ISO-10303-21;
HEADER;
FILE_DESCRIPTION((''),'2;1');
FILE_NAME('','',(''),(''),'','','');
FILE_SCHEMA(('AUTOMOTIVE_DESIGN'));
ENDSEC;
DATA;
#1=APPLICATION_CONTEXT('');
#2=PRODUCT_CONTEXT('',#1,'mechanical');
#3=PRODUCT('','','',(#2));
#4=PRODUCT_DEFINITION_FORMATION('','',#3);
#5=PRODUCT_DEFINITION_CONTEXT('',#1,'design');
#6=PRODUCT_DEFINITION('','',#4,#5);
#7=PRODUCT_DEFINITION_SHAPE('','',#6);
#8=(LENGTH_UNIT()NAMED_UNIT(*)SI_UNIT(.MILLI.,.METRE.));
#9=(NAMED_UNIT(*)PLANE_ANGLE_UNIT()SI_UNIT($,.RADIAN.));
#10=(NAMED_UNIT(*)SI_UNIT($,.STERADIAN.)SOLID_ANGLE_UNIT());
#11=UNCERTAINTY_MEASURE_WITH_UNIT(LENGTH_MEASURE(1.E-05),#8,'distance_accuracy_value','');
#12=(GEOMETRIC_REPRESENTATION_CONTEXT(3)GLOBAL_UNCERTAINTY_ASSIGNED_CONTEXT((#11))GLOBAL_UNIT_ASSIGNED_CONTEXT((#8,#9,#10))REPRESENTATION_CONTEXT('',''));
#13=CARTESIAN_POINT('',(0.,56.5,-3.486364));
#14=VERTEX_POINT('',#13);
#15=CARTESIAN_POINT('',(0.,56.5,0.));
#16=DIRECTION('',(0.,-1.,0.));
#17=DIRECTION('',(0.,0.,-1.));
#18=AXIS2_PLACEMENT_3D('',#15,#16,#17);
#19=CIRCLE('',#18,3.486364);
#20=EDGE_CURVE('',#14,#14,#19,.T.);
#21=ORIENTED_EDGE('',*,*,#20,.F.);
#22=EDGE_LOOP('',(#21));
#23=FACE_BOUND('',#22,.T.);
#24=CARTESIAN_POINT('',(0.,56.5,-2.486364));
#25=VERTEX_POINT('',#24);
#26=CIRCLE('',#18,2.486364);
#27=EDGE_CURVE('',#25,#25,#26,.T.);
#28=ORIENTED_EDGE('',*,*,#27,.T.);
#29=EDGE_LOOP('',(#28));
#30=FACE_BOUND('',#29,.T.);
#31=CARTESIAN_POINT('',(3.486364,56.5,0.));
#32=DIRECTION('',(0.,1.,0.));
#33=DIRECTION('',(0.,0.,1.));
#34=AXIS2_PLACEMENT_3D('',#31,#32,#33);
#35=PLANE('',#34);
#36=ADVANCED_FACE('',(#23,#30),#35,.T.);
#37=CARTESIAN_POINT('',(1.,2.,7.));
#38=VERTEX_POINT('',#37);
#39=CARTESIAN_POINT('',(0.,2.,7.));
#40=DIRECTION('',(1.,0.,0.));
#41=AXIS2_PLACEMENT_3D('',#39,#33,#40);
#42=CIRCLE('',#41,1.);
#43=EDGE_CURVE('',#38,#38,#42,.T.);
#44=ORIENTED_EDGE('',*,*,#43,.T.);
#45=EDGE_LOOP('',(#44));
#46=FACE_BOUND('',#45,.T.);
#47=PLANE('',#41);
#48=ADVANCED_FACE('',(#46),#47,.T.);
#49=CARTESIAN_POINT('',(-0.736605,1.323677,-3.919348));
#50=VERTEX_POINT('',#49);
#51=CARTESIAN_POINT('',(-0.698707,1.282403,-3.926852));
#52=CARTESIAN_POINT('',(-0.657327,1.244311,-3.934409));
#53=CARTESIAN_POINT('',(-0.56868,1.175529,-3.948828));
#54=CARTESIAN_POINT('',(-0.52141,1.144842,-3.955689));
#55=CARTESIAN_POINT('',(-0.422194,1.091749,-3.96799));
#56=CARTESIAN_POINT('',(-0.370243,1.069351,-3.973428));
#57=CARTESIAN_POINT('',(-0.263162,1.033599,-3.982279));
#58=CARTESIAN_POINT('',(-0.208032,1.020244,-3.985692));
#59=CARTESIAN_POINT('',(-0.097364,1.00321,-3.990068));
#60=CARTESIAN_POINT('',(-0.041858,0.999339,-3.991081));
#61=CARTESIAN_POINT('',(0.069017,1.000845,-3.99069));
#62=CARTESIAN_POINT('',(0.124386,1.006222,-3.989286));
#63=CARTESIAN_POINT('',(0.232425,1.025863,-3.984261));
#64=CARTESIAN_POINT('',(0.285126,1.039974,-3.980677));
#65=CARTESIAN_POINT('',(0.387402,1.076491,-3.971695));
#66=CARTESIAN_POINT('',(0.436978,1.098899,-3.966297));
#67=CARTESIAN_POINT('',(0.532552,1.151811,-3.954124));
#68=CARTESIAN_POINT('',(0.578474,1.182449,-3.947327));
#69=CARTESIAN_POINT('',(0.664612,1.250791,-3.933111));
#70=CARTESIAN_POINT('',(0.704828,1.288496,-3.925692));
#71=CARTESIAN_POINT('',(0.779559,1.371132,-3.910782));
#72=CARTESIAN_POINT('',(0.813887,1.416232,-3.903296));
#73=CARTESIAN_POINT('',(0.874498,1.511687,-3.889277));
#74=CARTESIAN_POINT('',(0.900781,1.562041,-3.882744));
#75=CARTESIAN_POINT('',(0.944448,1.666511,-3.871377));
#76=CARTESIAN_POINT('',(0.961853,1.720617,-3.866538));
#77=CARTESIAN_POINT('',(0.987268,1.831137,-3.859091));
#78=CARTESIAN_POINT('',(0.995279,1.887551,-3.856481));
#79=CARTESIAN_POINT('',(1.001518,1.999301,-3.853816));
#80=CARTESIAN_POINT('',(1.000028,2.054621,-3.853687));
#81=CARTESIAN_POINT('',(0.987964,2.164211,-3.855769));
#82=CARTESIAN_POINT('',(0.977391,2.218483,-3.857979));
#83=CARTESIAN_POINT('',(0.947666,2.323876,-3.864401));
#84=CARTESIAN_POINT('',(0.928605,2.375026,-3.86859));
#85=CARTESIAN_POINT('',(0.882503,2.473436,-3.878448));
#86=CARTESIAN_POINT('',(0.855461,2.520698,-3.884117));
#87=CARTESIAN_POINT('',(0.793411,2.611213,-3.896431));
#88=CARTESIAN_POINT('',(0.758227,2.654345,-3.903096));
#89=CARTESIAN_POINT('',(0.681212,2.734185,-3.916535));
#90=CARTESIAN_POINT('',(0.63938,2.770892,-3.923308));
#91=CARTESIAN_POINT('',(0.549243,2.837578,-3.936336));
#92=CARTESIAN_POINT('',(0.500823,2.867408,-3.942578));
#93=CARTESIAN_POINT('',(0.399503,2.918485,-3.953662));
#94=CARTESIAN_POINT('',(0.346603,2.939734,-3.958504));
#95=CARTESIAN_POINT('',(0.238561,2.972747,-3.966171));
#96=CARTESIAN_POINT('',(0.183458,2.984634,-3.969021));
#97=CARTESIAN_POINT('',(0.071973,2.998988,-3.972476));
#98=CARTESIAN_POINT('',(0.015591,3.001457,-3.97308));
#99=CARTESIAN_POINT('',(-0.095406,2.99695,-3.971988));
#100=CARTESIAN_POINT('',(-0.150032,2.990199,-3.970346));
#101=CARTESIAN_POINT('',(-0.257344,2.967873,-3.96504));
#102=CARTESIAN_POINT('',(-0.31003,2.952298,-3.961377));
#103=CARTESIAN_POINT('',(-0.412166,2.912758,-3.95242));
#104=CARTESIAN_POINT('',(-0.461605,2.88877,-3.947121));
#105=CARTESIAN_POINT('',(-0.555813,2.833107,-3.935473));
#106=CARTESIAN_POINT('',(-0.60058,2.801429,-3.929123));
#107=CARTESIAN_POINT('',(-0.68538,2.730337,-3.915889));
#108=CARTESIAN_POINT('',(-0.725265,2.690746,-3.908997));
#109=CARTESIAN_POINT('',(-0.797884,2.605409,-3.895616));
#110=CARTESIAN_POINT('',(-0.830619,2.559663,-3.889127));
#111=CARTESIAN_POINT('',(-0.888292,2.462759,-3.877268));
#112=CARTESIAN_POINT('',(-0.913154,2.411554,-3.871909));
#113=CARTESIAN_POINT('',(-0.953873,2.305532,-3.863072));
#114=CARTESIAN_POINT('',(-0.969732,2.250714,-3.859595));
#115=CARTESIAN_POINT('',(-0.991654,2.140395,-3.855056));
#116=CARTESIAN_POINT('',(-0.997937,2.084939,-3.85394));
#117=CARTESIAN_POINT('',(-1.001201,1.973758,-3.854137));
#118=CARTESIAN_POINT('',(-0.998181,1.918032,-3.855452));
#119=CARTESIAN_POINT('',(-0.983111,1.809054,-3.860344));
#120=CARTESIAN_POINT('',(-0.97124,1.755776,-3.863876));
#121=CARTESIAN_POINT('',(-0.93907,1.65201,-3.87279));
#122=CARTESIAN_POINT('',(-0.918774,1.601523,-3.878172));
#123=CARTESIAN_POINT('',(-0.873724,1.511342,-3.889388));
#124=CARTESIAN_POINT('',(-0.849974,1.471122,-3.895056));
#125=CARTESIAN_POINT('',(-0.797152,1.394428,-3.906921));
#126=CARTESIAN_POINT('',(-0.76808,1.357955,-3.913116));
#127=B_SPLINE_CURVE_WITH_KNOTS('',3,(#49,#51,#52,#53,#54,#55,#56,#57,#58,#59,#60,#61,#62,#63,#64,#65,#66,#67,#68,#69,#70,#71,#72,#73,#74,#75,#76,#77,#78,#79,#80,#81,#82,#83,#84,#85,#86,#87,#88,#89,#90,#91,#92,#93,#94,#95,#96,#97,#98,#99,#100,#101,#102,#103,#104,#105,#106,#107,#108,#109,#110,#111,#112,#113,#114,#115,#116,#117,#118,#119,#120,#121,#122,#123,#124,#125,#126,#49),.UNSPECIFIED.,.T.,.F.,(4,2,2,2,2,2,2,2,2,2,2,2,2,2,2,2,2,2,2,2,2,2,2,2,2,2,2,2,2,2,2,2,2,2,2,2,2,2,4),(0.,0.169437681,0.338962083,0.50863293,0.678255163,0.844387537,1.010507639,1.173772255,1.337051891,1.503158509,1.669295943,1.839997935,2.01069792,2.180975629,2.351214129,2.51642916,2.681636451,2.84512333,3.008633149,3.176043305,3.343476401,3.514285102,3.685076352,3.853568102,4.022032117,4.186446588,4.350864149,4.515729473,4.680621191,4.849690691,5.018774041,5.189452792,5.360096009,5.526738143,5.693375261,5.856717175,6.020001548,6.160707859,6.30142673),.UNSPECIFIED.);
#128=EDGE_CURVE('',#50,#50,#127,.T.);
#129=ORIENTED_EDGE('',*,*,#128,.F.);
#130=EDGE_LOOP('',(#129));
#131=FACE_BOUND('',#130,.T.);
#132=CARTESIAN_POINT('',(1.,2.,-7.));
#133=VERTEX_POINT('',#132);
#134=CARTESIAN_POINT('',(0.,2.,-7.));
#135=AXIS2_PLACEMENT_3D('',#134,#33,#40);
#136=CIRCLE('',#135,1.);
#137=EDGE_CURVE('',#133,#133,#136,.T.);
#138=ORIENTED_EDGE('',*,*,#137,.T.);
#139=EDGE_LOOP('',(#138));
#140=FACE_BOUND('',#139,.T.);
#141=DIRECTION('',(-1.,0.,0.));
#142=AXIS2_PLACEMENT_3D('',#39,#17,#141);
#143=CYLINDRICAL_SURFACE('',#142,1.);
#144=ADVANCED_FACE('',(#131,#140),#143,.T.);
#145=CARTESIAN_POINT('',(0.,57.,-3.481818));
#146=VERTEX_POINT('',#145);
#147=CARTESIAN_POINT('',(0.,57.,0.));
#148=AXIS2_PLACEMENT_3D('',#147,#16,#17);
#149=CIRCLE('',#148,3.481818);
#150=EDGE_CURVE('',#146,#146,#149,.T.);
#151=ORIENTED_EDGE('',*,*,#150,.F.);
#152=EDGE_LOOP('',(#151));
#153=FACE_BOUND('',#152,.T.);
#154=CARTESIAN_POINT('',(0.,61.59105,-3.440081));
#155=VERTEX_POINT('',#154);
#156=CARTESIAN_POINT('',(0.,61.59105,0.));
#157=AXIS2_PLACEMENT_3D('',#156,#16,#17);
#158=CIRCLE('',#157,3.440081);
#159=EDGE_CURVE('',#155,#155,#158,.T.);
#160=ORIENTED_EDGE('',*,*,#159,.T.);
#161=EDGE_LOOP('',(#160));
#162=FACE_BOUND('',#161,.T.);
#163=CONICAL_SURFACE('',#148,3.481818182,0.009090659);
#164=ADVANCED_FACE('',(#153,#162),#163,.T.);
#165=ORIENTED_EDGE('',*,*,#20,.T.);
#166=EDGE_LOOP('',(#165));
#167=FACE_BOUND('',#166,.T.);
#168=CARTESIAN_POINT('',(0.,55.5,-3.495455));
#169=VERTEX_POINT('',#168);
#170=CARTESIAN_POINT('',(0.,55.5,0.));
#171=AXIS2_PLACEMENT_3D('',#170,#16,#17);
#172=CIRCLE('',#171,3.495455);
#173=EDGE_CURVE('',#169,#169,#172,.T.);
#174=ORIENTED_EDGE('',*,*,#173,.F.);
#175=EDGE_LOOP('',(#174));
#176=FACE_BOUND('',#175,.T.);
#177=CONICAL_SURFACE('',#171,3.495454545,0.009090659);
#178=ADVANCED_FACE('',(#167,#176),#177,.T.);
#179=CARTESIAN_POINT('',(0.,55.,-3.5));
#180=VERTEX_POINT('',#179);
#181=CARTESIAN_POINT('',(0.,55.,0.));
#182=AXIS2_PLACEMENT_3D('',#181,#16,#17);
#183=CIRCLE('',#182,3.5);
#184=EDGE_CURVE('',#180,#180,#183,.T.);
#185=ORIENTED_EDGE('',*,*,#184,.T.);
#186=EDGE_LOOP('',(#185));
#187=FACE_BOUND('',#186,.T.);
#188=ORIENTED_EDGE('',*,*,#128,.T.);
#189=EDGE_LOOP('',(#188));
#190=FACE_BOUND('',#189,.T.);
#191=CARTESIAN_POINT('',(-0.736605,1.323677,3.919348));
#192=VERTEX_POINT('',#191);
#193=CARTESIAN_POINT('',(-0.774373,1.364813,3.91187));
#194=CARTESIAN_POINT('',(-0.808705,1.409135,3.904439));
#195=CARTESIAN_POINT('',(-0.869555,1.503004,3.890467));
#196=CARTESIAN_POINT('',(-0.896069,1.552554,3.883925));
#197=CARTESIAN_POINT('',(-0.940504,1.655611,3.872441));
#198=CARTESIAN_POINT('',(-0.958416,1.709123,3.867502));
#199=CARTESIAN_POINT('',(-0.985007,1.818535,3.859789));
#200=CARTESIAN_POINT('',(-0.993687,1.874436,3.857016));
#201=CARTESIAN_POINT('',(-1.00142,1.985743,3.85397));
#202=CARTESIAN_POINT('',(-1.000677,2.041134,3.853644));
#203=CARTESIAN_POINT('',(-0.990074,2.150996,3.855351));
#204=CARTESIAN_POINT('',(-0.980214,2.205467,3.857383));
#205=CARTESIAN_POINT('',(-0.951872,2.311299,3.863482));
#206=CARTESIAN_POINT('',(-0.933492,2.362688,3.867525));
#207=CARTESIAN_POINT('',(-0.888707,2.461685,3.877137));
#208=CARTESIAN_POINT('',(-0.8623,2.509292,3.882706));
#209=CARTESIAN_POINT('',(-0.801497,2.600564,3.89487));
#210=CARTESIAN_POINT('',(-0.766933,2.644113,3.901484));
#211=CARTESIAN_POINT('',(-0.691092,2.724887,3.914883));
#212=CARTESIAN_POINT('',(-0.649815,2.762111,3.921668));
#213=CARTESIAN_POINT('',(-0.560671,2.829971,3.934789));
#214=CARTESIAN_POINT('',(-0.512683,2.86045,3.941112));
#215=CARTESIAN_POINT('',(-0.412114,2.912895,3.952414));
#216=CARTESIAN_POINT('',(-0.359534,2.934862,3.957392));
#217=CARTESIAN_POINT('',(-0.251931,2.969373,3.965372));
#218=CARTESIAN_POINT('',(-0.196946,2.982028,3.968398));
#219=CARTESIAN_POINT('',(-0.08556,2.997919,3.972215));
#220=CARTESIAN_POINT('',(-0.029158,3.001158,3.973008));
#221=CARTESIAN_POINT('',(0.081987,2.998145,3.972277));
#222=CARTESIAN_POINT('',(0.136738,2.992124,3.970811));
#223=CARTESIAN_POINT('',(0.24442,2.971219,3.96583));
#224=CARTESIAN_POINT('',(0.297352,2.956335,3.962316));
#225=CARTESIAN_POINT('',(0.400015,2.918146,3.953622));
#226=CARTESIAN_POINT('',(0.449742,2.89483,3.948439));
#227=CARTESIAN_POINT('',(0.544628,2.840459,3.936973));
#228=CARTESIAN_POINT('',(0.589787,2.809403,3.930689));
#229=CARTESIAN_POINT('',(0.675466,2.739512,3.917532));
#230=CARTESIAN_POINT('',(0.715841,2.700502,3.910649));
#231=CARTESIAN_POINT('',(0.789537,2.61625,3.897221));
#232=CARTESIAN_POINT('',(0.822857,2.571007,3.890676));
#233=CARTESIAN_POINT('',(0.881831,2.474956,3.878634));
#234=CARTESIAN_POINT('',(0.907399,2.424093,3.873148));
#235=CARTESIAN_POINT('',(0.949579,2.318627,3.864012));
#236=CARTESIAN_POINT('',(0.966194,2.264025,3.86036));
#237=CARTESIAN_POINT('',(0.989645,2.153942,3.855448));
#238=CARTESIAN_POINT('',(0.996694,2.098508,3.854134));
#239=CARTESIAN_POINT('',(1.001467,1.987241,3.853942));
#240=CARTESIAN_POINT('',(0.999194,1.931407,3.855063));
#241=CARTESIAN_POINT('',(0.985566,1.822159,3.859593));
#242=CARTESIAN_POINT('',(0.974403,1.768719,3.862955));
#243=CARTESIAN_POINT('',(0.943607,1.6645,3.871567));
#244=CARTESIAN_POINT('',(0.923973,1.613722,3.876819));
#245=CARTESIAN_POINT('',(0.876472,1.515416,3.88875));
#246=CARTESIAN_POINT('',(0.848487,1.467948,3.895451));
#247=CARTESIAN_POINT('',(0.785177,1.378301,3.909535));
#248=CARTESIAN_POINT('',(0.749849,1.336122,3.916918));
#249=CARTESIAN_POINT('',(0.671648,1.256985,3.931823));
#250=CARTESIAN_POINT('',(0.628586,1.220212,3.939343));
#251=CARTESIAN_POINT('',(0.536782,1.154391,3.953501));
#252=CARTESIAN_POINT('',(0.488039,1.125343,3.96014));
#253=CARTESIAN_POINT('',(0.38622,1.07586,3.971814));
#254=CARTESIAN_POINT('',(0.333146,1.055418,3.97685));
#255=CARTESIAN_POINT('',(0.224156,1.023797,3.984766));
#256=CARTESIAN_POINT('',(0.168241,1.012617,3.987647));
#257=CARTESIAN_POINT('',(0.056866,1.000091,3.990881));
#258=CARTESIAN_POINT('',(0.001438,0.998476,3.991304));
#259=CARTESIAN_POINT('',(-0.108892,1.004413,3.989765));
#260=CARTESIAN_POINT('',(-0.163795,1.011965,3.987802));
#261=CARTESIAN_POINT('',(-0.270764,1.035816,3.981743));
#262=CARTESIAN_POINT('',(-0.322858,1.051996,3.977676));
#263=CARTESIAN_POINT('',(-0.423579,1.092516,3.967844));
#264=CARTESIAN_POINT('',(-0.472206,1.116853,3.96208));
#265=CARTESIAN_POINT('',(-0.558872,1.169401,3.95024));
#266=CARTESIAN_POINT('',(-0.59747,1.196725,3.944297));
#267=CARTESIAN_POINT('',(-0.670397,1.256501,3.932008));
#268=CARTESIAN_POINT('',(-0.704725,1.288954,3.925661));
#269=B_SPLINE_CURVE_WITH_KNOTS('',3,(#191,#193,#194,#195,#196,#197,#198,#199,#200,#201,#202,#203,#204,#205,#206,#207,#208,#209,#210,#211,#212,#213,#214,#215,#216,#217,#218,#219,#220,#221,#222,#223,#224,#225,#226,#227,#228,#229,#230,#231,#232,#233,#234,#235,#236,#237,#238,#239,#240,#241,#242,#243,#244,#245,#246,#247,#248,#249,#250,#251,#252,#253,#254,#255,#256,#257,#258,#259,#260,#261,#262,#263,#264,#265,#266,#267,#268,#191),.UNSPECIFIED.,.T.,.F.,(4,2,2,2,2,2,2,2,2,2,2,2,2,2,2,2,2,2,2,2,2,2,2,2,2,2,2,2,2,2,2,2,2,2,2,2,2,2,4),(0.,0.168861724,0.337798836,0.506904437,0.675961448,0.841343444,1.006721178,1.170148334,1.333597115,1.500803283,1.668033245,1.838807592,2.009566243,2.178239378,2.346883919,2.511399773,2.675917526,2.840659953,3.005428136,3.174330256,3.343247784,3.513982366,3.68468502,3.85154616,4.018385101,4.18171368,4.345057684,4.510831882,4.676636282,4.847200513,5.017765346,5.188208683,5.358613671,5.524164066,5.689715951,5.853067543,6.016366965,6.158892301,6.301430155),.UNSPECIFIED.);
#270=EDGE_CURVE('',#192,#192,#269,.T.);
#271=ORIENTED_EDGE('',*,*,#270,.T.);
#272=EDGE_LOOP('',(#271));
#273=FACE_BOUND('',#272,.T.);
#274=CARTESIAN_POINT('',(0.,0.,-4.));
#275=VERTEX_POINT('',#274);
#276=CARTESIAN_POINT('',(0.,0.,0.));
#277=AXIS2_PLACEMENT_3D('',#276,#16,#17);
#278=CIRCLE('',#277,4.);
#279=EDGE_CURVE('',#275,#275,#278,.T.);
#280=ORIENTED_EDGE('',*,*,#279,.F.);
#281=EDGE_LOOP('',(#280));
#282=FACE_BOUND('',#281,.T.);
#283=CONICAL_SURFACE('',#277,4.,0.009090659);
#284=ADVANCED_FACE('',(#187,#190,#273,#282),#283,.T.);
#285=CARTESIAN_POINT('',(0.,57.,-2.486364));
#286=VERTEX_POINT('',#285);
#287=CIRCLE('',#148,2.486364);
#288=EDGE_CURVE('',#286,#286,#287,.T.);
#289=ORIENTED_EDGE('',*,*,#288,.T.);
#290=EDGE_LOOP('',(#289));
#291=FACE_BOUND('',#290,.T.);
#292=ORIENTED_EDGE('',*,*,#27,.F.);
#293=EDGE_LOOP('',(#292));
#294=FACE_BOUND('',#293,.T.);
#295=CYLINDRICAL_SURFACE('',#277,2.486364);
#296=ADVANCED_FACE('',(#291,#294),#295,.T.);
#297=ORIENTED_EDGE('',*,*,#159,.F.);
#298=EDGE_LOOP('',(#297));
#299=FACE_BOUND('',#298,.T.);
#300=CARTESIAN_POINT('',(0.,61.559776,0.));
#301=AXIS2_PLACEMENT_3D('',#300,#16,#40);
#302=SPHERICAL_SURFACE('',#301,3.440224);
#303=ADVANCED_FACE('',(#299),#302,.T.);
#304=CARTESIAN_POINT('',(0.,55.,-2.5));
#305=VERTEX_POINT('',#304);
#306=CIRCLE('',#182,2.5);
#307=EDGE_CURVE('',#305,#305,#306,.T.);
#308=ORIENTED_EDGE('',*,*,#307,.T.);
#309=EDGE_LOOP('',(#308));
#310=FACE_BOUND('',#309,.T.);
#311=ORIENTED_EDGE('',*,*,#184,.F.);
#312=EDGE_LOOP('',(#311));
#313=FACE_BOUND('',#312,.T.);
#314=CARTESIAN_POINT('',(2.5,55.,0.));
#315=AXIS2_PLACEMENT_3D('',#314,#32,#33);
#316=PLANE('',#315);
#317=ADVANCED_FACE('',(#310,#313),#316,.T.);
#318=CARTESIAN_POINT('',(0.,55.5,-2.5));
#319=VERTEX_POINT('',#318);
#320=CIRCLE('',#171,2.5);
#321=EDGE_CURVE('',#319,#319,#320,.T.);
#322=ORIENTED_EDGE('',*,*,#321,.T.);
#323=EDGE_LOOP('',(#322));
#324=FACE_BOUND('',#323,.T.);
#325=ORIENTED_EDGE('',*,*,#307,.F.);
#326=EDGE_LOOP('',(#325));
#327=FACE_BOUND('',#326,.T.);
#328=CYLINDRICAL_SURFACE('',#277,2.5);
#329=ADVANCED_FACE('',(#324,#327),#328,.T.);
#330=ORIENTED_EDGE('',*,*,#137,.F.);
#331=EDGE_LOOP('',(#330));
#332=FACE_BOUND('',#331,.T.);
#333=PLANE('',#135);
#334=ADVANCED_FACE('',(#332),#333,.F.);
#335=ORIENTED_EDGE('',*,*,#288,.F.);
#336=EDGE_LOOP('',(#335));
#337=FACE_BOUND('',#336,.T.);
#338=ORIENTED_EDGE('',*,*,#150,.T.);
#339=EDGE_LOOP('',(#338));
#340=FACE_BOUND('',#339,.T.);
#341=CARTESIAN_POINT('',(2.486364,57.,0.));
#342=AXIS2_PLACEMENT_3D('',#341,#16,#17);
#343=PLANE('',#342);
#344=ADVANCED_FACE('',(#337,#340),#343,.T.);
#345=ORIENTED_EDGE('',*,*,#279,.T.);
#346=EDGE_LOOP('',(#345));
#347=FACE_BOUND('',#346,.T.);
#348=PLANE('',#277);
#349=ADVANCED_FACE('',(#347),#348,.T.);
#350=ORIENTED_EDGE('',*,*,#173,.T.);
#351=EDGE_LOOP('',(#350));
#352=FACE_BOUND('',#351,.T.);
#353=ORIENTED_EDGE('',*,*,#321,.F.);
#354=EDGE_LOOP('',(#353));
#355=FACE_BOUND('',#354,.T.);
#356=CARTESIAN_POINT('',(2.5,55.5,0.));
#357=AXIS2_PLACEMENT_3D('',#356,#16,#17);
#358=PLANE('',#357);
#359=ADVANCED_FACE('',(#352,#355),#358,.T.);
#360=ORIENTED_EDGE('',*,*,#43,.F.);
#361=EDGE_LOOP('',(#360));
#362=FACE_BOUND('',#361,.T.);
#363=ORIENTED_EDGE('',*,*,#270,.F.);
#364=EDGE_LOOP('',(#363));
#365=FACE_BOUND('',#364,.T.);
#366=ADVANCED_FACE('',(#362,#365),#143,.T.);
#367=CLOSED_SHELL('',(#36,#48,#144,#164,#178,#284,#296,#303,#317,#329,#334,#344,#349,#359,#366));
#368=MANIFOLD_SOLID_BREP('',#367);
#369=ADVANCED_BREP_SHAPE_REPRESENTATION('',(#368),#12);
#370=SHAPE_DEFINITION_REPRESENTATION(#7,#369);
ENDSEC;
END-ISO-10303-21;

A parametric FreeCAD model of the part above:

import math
import FreeCAD as App
import Part
import Sketcher
from FreeCAD import Vector

doc = App.newDocument("Part")
params = doc.addObject("Spreadsheet::Sheet", "Params")
for row, (alias, value) in enumerate([
    ("sketch1_width", "4 mm"),
    ("sketch1_width2", "1 mm"),
    ("sketch1_height", "65 mm"),
    ("sketch1_height2", "0.5 mm"),
    ("revolution_angle", "360 deg"),
    ("sketch2_diameter", "2 mm"),
    ("pad1_length", "14 mm"),
], start=1):
    params.set(f"A{row}", alias)
    params.set(f"B{row}", "=" + value)
    params.setAlias(f"B{row}", alias)

body = doc.addObject("PartDesign::Body", "Body")

# Sketch on XY plane
sketch1 = doc.addObject("Sketcher::SketchObject", "Sketch")
body.addObject(sketch1)
sketch1.AttachmentSupport = (doc.XY_Plane, [""])
sketch1.MapMode = "FlatFace"
sketch1.addGeometry([
    Part.LineSegment(Vector(0, 0, 0), Vector(4, 0, 0)),  # 0
    Part.LineSegment(Vector(4, 0, 0), Vector(3.5, 55, 0)),  # 1
    Part.LineSegment(Vector(3.5, 55, 0), Vector(2.5, 55, 0)),  # 2
    Part.LineSegment(Vector(2.5, 55, 0), Vector(2.5, 55.5, 0)),  # 3
    Part.LineSegment(Vector(2.5, 55.5, 0), Vector(3.5, 55.5, 0)),  # 4
    Part.LineSegment(Vector(3.5, 55.5, 0), Vector(3.5, 56.5, 0)),  # 5
    Part.LineSegment(Vector(3.5, 56.5, 0), Vector(2.5, 56.5, 0)),  # 6
    Part.LineSegment(Vector(2.5, 56.5, 0), Vector(2.5, 57, 0)),  # 7
    Part.LineSegment(Vector(2.5, 57, 0), Vector(3.5, 57, 0)),  # 8
    Part.LineSegment(Vector(3.5, 57, 0), Vector(3.4, 61.6, 0)),  # 9
    Part.ArcOfCircle(Part.Circle(Vector(0, 61.6, 0), Vector(0, 0, 1), 3.4), math.radians(1), math.radians(90)),  # 10
    Part.LineSegment(Vector(0, 65, 0), Vector(0, 0, 0)),  # 11
], False)
sketch1.addConstraint([
    Sketcher.Constraint("Coincident", 0, 2, 1, 1),
    Sketcher.Constraint("Coincident", 1, 2, 2, 1),
    Sketcher.Constraint("Coincident", 2, 2, 3, 1),
    Sketcher.Constraint("Coincident", 3, 2, 4, 1),
    Sketcher.Constraint("Coincident", 4, 2, 5, 1),
    Sketcher.Constraint("Coincident", 5, 2, 6, 1),
    Sketcher.Constraint("Coincident", 6, 2, 7, 1),
    Sketcher.Constraint("Coincident", 7, 2, 8, 1),
    Sketcher.Constraint("Coincident", 8, 2, 9, 1),
    Sketcher.Constraint("Tangent", 9, 2, 10, 1),
    Sketcher.Constraint("Coincident", 10, 2, 11, 1),
    Sketcher.Constraint("Coincident", 11, 2, 0, 1),
    Sketcher.Constraint("Horizontal", 0),
    Sketcher.Constraint("Horizontal", 2),
    Sketcher.Constraint("Vertical", 3),
    Sketcher.Constraint("Horizontal", 4),
    Sketcher.Constraint("Horizontal", 6),
    Sketcher.Constraint("Vertical", 7),
    Sketcher.Constraint("Horizontal", 8),
    Sketcher.Constraint("Vertical", 11),
    Sketcher.Constraint("Coincident", 11, 2, -1, 1),
    Sketcher.Constraint("PointOnObject", 10, 3, -2),
    Sketcher.Constraint("Parallel", 1, 5),
    Sketcher.Constraint("Parallel", 5, 9),
    Sketcher.Constraint("Equal", 2, 6),
    Sketcher.Constraint("Equal", 4, 8),
    Sketcher.Constraint("Equal", 3, 7),
    Sketcher.Constraint("DistanceX", 0, 1, 0, 2, 4.0),
    Sketcher.Constraint("DistanceX", 2, 2, 2, 1, 1.0),
    Sketcher.Constraint("DistanceY", 11, 2, 11, 1, 65.0),
    Sketcher.Constraint("DistanceY", 3, 1, 3, 2, 0.5),
    Sketcher.Constraint("DistanceY", -1, 1, 1, 2, 55.0),
    Sketcher.Constraint("DistanceY", -1, 1, 7, 2, 57.0),
    Sketcher.Constraint("DistanceX", -1, 1, 1, 2, 3.5),
    Sketcher.Constraint("Radius", 10, 3.440224),
])
sketch1.setExpression("Constraints[27]", "Params.sketch1_width")
sketch1.setExpression("Constraints[28]", "Params.sketch1_width2")
sketch1.setExpression("Constraints[29]", "Params.sketch1_height")
sketch1.setExpression("Constraints[30]", "Params.sketch1_height2")
revolution = doc.addObject("PartDesign::Revolution", "Revolution")
body.addObject(revolution)
revolution.Profile = sketch1
revolution.ReferenceAxis = (sketch1, ["V_Axis"])
revolution.setExpression("Angle", "Params.revolution_angle")

# Sketch on XY plane
sketch2 = doc.addObject("Sketcher::SketchObject", "Sketch001")
body.addObject(sketch2)
sketch2.AttachmentSupport = (doc.XY_Plane, [""])
sketch2.MapMode = "FlatFace"
sketch2.addGeometry(Part.Circle(Vector(0, 2, 0), Vector(0, 0, 1), 1), False)
sketch2.addConstraint([
    Sketcher.Constraint("PointOnObject", 0, 3, -2),
    Sketcher.Constraint("Diameter", 0, 2.0),
    Sketcher.Constraint("DistanceY", -1, 1, 0, 3, 2.0),
])
sketch2.setExpression("Constraints[1]", "Params.sketch2_diameter")
pad1 = doc.addObject("PartDesign::Pad", "Pad")
body.addObject(pad1)
pad1.Profile = sketch2
pad1.setExpression("Length", "Params.pad1_length")
pad1.Midplane = True

doc.recompute()
